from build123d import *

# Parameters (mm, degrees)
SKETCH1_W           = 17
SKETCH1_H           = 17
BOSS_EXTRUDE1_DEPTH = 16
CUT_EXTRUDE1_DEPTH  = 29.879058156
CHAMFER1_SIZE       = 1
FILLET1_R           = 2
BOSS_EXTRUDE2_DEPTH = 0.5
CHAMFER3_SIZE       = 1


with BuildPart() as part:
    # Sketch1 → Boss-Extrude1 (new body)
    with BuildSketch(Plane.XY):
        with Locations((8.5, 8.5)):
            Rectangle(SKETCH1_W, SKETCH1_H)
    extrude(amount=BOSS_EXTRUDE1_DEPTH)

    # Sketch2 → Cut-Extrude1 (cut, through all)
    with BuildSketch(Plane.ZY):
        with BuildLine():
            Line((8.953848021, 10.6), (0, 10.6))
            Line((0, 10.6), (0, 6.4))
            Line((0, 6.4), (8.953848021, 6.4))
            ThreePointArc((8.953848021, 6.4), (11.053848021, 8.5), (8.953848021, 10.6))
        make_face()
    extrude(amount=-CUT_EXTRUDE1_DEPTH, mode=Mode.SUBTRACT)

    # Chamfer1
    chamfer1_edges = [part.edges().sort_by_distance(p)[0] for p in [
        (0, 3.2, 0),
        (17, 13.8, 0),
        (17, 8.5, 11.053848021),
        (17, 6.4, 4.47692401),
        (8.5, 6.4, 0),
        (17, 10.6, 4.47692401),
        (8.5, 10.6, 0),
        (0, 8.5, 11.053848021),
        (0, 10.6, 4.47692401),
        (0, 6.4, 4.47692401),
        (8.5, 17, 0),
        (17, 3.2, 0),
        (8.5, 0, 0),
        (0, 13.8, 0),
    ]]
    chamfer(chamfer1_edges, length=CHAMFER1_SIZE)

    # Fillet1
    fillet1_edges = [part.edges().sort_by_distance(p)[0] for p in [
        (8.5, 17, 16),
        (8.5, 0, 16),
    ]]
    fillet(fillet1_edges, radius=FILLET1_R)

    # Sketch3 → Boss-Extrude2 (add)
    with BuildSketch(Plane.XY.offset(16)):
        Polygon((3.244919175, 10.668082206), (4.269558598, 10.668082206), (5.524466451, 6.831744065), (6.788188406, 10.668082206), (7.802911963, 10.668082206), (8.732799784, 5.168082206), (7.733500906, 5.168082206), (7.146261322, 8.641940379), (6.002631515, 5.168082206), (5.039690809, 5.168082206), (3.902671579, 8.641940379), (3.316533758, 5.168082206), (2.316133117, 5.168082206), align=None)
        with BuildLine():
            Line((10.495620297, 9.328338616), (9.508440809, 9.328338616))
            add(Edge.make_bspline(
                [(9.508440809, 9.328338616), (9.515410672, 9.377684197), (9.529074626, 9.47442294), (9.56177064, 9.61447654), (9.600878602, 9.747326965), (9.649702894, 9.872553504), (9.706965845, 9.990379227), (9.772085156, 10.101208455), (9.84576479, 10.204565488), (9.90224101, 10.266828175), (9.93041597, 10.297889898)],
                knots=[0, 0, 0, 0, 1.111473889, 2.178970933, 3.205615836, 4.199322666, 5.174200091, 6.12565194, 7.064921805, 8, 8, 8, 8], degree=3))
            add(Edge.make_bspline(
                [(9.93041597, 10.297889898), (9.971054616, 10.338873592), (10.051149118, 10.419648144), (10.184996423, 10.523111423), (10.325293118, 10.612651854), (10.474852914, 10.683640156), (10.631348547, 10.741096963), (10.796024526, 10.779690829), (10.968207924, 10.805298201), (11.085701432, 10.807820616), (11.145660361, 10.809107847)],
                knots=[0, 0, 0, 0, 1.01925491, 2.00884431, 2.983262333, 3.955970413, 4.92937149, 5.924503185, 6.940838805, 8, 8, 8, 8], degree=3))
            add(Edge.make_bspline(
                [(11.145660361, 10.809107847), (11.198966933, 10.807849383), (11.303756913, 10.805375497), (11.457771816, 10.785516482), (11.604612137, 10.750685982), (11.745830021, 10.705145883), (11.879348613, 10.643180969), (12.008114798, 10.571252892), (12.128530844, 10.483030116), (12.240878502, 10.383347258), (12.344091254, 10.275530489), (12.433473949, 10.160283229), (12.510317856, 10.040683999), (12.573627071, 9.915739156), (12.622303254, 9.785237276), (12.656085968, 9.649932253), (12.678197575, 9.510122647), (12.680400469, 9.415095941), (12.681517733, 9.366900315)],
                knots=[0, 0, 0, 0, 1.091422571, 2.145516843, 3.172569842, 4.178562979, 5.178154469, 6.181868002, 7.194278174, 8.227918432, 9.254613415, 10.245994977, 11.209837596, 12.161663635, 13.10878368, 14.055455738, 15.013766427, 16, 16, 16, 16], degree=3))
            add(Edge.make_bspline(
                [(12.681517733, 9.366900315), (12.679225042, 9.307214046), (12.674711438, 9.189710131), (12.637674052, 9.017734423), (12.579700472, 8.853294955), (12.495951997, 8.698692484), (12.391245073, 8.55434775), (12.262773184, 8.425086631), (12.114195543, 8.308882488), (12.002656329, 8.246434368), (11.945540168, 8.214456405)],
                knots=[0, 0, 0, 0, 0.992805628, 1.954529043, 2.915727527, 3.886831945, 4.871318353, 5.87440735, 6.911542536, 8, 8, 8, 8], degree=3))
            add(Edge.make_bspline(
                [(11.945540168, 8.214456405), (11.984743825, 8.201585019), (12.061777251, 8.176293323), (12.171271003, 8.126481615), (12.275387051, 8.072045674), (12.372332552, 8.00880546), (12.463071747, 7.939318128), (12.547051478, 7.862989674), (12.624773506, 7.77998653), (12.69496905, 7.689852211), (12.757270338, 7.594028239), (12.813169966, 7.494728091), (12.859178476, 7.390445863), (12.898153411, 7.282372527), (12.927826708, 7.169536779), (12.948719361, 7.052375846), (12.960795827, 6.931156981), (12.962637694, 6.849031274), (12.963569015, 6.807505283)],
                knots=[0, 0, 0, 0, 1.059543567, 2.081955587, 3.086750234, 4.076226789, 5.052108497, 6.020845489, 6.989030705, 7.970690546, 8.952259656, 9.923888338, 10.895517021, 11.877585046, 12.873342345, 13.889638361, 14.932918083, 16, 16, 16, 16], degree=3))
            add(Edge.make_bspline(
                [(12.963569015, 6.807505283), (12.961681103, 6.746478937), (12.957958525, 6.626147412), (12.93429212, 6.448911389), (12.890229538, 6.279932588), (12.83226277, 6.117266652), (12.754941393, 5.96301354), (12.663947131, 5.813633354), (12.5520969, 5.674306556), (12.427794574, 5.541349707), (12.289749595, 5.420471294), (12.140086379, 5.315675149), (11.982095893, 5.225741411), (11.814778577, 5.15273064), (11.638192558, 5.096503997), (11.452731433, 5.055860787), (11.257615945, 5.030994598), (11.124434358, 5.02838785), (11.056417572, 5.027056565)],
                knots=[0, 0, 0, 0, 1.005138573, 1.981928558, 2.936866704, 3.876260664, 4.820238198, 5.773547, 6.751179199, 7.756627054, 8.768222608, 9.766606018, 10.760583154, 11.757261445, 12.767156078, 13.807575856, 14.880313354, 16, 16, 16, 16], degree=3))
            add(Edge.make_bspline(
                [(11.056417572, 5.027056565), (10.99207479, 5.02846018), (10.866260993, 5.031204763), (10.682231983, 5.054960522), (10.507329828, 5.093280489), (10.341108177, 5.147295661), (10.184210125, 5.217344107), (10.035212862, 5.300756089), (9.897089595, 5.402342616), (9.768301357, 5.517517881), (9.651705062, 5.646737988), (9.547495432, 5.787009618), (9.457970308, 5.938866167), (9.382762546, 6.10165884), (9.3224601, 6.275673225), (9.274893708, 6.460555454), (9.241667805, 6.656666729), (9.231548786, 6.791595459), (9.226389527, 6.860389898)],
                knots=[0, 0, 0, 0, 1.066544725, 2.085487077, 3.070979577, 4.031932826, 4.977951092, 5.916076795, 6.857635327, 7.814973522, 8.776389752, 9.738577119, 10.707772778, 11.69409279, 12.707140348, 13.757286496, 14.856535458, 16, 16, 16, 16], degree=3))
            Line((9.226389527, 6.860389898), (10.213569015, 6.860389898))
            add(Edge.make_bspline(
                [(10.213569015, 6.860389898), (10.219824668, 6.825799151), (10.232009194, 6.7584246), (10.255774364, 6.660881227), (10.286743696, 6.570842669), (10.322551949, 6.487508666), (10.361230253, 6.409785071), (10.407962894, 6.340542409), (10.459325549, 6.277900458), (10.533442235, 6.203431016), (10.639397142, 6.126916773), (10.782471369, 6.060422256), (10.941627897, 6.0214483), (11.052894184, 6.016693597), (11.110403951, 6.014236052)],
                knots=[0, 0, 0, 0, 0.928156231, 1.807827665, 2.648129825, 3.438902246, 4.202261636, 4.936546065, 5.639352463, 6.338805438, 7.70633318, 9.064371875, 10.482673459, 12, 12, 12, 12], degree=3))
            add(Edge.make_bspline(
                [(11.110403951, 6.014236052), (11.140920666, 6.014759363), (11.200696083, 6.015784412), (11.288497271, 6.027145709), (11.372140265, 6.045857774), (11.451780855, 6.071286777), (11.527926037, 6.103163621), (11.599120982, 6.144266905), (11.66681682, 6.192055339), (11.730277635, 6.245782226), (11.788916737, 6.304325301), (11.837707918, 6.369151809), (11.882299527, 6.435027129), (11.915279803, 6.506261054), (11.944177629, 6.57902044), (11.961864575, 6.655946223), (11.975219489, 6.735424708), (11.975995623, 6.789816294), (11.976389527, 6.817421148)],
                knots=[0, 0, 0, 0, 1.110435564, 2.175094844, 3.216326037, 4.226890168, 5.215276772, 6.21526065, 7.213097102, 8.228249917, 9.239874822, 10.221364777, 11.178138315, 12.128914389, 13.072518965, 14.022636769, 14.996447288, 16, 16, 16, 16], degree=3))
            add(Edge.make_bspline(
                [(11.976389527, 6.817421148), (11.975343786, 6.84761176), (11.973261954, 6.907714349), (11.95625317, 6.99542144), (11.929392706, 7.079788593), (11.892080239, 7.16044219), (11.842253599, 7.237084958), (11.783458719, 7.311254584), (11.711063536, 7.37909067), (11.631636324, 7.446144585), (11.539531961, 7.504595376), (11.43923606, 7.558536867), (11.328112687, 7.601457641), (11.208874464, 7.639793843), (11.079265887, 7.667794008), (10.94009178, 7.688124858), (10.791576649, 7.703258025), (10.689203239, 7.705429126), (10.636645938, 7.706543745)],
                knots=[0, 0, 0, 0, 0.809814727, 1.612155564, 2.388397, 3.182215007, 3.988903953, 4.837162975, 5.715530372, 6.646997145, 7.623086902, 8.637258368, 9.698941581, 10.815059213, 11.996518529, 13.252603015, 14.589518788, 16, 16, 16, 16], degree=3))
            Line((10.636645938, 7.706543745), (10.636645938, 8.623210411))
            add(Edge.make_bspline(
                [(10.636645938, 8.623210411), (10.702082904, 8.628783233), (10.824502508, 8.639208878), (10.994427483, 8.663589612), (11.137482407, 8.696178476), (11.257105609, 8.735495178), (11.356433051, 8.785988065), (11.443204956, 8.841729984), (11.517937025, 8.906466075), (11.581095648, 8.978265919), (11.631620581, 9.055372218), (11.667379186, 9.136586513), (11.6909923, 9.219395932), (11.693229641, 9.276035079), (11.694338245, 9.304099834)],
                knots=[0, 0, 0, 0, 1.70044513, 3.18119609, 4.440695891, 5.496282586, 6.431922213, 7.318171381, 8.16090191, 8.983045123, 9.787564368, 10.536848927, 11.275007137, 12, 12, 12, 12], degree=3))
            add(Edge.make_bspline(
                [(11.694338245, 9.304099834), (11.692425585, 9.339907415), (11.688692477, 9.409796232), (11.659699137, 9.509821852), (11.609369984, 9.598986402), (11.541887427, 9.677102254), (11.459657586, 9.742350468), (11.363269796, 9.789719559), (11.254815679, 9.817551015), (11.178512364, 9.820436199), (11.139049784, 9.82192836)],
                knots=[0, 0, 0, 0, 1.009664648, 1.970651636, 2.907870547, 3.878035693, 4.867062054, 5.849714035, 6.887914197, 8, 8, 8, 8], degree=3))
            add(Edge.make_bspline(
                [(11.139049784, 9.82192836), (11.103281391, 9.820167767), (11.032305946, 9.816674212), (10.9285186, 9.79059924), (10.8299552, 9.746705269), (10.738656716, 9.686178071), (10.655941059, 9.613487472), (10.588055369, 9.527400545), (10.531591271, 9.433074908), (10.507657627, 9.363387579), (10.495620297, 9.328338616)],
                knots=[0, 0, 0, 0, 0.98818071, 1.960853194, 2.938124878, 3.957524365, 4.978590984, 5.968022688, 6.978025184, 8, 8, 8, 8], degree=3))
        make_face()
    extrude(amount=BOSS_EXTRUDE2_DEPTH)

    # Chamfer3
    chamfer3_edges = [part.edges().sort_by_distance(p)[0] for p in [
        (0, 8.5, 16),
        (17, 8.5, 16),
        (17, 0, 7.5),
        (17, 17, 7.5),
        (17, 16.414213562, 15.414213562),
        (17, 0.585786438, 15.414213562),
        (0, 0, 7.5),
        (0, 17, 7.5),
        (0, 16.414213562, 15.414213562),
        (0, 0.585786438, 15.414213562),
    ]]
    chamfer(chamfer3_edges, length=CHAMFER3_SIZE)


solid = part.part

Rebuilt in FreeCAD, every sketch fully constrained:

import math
import FreeCAD as App
import Part
import Sketcher

V = App.Vector
Q = App.Units.Quantity


def edges_at(feature, points):
    """Names of the edges that pass closest to the given points."""
    edges = feature.Shape.Edges
    near = lambda p: min(range(len(edges)), key=lambda i: edges[i].distToShape(Part.Vertex(*p))[0])
    return sorted({f"Edge{near(p) + 1}" for p in points})

doc = App.newDocument("Part")
params = doc.addObject("Spreadsheet::Sheet", "Params")
for row, (alias, value) in enumerate([
    ("sketch1_width", "17 mm"),
    ("pad1_length", "16 mm"),
    ("sketch2_radius", "2.1 mm"),
    ("chamfer_size", "1 mm"),
    ("fillet_radius", "2 mm"),
    ("pad2_length", "0.5 mm"),
    ("chamfer2_size", "1 mm"),
], start=1):
    params.set(f"A{row}", alias)
    params.set(f"B{row}", "=" + value)
    params.setAlias(f"B{row}", alias)

body = doc.addObject("PartDesign::Body", "Body")

# Sketch on XY plane
sketch1 = body.newObject("Sketcher::SketchObject", "Sketch")
sketch1.AttachmentSupport = (doc.getObject("XY_Plane"), [""])
sketch1.MapMode = "FlatFace"
sketch1.addGeometry(Part.LineSegment(V(0, 17, 0), V(0, 0, 0)), False)
sketch1.addGeometry(Part.LineSegment(V(0, 0, 0), V(17, 0, 0)), False)
sketch1.addGeometry(Part.LineSegment(V(17, 0, 0), V(17, 17, 0)), False)
sketch1.addGeometry(Part.LineSegment(V(17, 17, 0), V(0, 17, 0)), False)
sketch1.addConstraint(Sketcher.Constraint("Coincident", 0, 2, 1, 1))
sketch1.addConstraint(Sketcher.Constraint("Coincident", 1, 2, 2, 1))
sketch1.addConstraint(Sketcher.Constraint("Coincident", 2, 2, 3, 1))
sketch1.addConstraint(Sketcher.Constraint("Coincident", 3, 2, 0, 1))
sketch1.addConstraint(Sketcher.Constraint("Vertical", 0))
sketch1.addConstraint(Sketcher.Constraint("Horizontal", 1))
sketch1.addConstraint(Sketcher.Constraint("Vertical", 2))
sketch1.addConstraint(Sketcher.Constraint("Horizontal", 3))
sketch1.addConstraint(Sketcher.Constraint("Coincident", 0, 2, -1, 1))
sketch1.addConstraint(Sketcher.Constraint("Equal", 3, 0))
sketch1.addConstraint(Sketcher.Constraint("DistanceX", 1, 1, 1, 2, Q("17 mm")))
sketch1.setExpression("Constraints[10]", "Params.sketch1_width")
pad1 = body.newObject("PartDesign::Pad", "Pad")
pad1.Profile = sketch1
pad1.setExpression("Length", "Params.pad1_length")

# Sketch on YZ plane
sketch2 = body.newObject("Sketcher::SketchObject", "Sketch001")
sketch2.AttachmentSupport = (doc.getObject("YZ_Plane"), [""])
sketch2.MapMode = "FlatFace"
sketch2.addGeometry(Part.LineSegment(V(10.6, 9, 0), V(10.6, 0, 0)), False)
sketch2.addGeometry(Part.LineSegment(V(10.6, 0, 0), V(6.4, 0, 0)), False)
sketch2.addGeometry(Part.LineSegment(V(6.4, 0, 0), V(6.4, 9, 0)), False)
sketch2.addGeometry(Part.ArcOfCircle(Part.Circle(V(8.5, 9, 0), V(0, 0, 1), 2.1), math.radians(0), math.radians(180)), False)
sketch2.addConstraint(Sketcher.Constraint("Coincident", 0, 2, 1, 1))
sketch2.addConstraint(Sketcher.Constraint("Coincident", 1, 2, 2, 1))
sketch2.addConstraint(Sketcher.Constraint("Tangent", 2, 2, 3, 2))
sketch2.addConstraint(Sketcher.Constraint("Tangent", 3, 1, 0, 1))
sketch2.addConstraint(Sketcher.Constraint("Vertical", 0))
sketch2.addConstraint(Sketcher.Constraint("Horizontal", 1))
sketch2.addConstraint(Sketcher.Constraint("Vertical", 2))
sketch2.addConstraint(Sketcher.Constraint("PointOnObject", 0, 2, -1))
sketch2.addConstraint(Sketcher.Constraint("Radius", 3, Q("2.1 mm")))
sketch2.addConstraint(Sketcher.Constraint("DistanceX", -1, 1, 3, 3, Q("8.5 mm")))
sketch2.addConstraint(Sketcher.Constraint("DistanceY", 0, 2, 0, 1, Q("8.953848 mm")))
sketch2.setExpression("Constraints[8]", "Params.sketch2_radius")
pocket1 = body.newObject("PartDesign::Pocket", "Pocket")
pocket1.Profile = sketch2
pocket1.Type = "ThroughAll"
pocket1.Reversed = True
doc.recompute()

chamfer = body.newObject("PartDesign::Chamfer", "Chamfer")
chamfer.Base = (pocket1, edges_at(pocket1, [
    (0, 3.2, 0),
    (17, 13.8, 0),
    (17, 8.5, 11.054),
    (17, 6.4, 4.477),
    (8.5, 6.4, 0),
    (17, 10.6, 4.477),
    (8.5, 10.6, 0),
    (0, 8.5, 11.054),
    (0, 10.6, 4.477),
    (0, 6.4, 4.477),
    (8.5, 17, 0),
    (17, 3.2, 0),
    (8.5, 0, 0),
    (0, 13.8, 0),
]))
chamfer.setExpression("Size", "Params.chamfer_size")
doc.recompute()

fillet = body.newObject("PartDesign::Fillet", "Fillet")
fillet.Base = (chamfer, edges_at(chamfer, [(8.5, 17, 16), (8.5, 0, 16)]))
fillet.setExpression("Radius", "Params.fillet_radius")

# Sketch on XY plane
sketch3 = body.newObject("Sketcher::SketchObject", "Sketch002")
sketch3.AttachmentSupport = (doc.getObject("XY_Plane"), [""])
sketch3.MapMode = "FlatFace"
sketch3.AttachmentOffset = App.Placement(V(0, 0, 16), App.Rotation())
sketch3.addGeometry(Part.LineSegment(V(4.269559, 10.668082, 0), V(3.244919, 10.668082, 0)), False)
sketch3.addGeometry(Part.LineSegment(V(3.244919, 10.668082, 0), V(2.316133, 5.168082, 0)), False)
sketch3.addGeometry(Part.LineSegment(V(2.316133, 5.168082, 0), V(3.316534, 5.168082, 0)), False)
sketch3.addGeometry(Part.LineSegment(V(3.316534, 5.168082, 0), V(3.902672, 8.64194, 0)), False)
sketch3.addGeometry(Part.LineSegment(V(3.902672, 8.64194, 0), V(5.039691, 5.168082, 0)), False)
sketch3.addGeometry(Part.LineSegment(V(5.039691, 5.168082, 0), V(6.002632, 5.168082, 0)), False)
sketch3.addGeometry(Part.LineSegment(V(6.002632, 5.168082, 0), V(7.146261, 8.64194, 0)), False)
sketch3.addGeometry(Part.LineSegment(V(7.146261, 8.64194, 0), V(7.733501, 5.168082, 0)), False)
sketch3.addGeometry(Part.LineSegment(V(7.733501, 5.168082, 0), V(8.7328, 5.168082, 0)), False)
sketch3.addGeometry(Part.LineSegment(V(8.7328, 5.168082, 0), V(7.802912, 10.668082, 0)), False)
sketch3.addGeometry(Part.LineSegment(V(7.802912, 10.668082, 0), V(6.788188, 10.668082, 0)), False)
sketch3.addGeometry(Part.LineSegment(V(6.788188, 10.668082, 0), V(5.524466, 6.831744, 0)), False)
sketch3.addGeometry(Part.LineSegment(V(5.524466, 6.831744, 0), V(4.269559, 10.668082, 0)), False)
sketch3.addGeometry(Part.LineSegment(V(9.508441, 9.328339, 0), V(10.49562, 9.328339, 0)), False)
sketch3.addGeometry(Part.BSplineCurve([V(11.13905, 9.821928, 0), V(11.103281, 9.820168, 0), V(11.032306, 9.816674, 0), V(10.928519, 9.790599, 0), V(10.829955, 9.746705, 0), V(10.738657, 9.686178, 0), V(10.655941, 9.613487, 0), V(10.588055, 9.527401, 0), V(10.531591, 9.433075, 0), V(10.507658, 9.363388, 0), V(10.49562, 9.328339, 0)], [4, 1, 1, 1, 1, 1, 1, 1, 4], [0, 0.98818071, 1.960853194, 2.938124878, 3.957524365, 4.978590984, 5.968022688, 6.978025184, 8], False, 3, [1, 1, 1, 1, 1, 1, 1, 1, 1, 1, 1], False), False)
sketch3.addGeometry(Part.BSplineCurve([V(11.694338, 9.3041, 0), V(11.692426, 9.339907, 0), V(11.688692, 9.409796, 0), V(11.659699, 9.509822, 0), V(11.60937, 9.598986, 0), V(11.541887, 9.677102, 0), V(11.459658, 9.74235, 0), V(11.36327, 9.78972, 0), V(11.254816, 9.817551, 0), V(11.178512, 9.820436, 0), V(11.13905, 9.821928, 0)], [4, 1, 1, 1, 1, 1, 1, 1, 4], [0, 1.009664648, 1.970651636, 2.907870547, 3.878035693, 4.867062054, 5.849714035, 6.887914197, 8], False, 3, [1, 1, 1, 1, 1, 1, 1, 1, 1, 1, 1], False), False)
sketch3.addGeometry(Part.BSplineCurve([V(10.636646, 8.62321, 0), V(10.702083, 8.628783, 0), V(10.824503, 8.639209, 0), V(10.994427, 8.66359, 0), V(11.137482, 8.696178, 0), V(11.257106, 8.735495, 0), V(11.356433, 8.785988, 0), V(11.443205, 8.84173, 0), V(11.517937, 8.906466, 0), V(11.581096, 8.978266, 0), V(11.631621, 9.055372, 0), V(11.667379, 9.136587, 0), V(11.690992, 9.219396, 0), V(11.69323, 9.276035, 0), V(11.694338, 9.3041, 0)], [4, 1, 1, 1, 1, 1, 1, 1, 1, 1, 1, 1, 4], [0, 1.70044513, 3.18119609, 4.440695891, 5.496282586, 6.431922213, 7.318171381, 8.16090191, 8.983045123, 9.787564368, 10.536848927, 11.275007137, 12], False, 3, [1, 1, 1, 1, 1, 1, 1, 1, 1, 1, 1, 1, 1, 1, 1], False), False)
sketch3.addGeometry(Part.LineSegment(V(10.636646, 8.62321, 0), V(10.636646, 7.706544, 0)), False)
sketch3.addGeometry(Part.BSplineCurve([V(11.97639, 6.817421, 0), V(11.975344, 6.847612, 0), V(11.973262, 6.907714, 0), V(11.956253, 6.995421, 0), V(11.929393, 7.079789, 0), V(11.89208, 7.160442, 0), V(11.842254, 7.237085, 0), V(11.783459, 7.311255, 0), V(11.711064, 7.379091, 0), V(11.631636, 7.446145, 0), V(11.539532, 7.504595, 0), V(11.439236, 7.558537, 0), V(11.328113, 7.601458, 0), V(11.208874, 7.639794, 0), V(11.079266, 7.667794, 0), V(10.940092, 7.688125, 0), V(10.791577, 7.703258, 0), V(10.689203, 7.705429, 0), V(10.636646, 7.706544, 0)], [4, 1, 1, 1, 1, 1, 1, 1, 1, 1, 1, 1, 1, 1, 1, 1, 4], [0, 0.809814727, 1.612155564, 2.388397, 3.182215007, 3.988903953, 4.837162975, 5.715530372, 6.646997145, 7.623086902, 8.637258368, 9.698941581, 10.815059213, 11.996518529, 13.252603015, 14.589518788, 16], False, 3, [1, 1, 1, 1, 1, 1, 1, 1, 1, 1, 1, 1, 1, 1, 1, 1, 1, 1, 1], False), False)
sketch3.addGeometry(Part.BSplineCurve([V(11.110404, 6.014236, 0), V(11.140921, 6.014759, 0), V(11.200696, 6.015784, 0), V(11.288497, 6.027146, 0), V(11.37214, 6.045858, 0), V(11.451781, 6.071287, 0), V(11.527926, 6.103164, 0), V(11.599121, 6.144267, 0), V(11.666817, 6.192055, 0), V(11.730278, 6.245782, 0), V(11.788917, 6.304325, 0), V(11.837708, 6.369152, 0), V(11.8823, 6.435027, 0), V(11.91528, 6.506261, 0), V(11.944178, 6.57902, 0), V(11.961865, 6.655946, 0), V(11.975219, 6.735425, 0), V(11.975996, 6.789816, 0), V(11.97639, 6.817421, 0)], [4, 1, 1, 1, 1, 1, 1, 1, 1, 1, 1, 1, 1, 1, 1, 1, 4], [0, 1.110435564, 2.175094844, 3.216326037, 4.226890168, 5.215276772, 6.21526065, 7.213097102, 8.228249917, 9.239874822, 10.221364777, 11.178138315, 12.128914389, 13.072518965, 14.022636769, 14.996447288, 16], False, 3, [1, 1, 1, 1, 1, 1, 1, 1, 1, 1, 1, 1, 1, 1, 1, 1, 1, 1, 1], False), False)
sketch3.addGeometry(Part.BSplineCurve([V(10.213569, 6.86039, 0), V(10.219825, 6.825799, 0), V(10.232009, 6.758425, 0), V(10.255774, 6.660881, 0), V(10.286744, 6.570843, 0), V(10.322552, 6.487509, 0), V(10.36123, 6.409785, 0), V(10.407963, 6.340542, 0), V(10.459326, 6.2779, 0), V(10.533442, 6.203431, 0), V(10.639397, 6.126917, 0), V(10.782471, 6.060422, 0), V(10.941628, 6.021448, 0), V(11.052894, 6.016694, 0), V(11.110404, 6.014236, 0)], [4, 1, 1, 1, 1, 1, 1, 1, 1, 1, 1, 1, 4], [0, 0.928156231, 1.807827665, 2.648129825, 3.438902246, 4.202261636, 4.936546065, 5.639352463, 6.338805438, 7.70633318, 9.064371875, 10.482673459, 12], False, 3, [1, 1, 1, 1, 1, 1, 1, 1, 1, 1, 1, 1, 1, 1, 1], False), False)
sketch3.addGeometry(Part.LineSegment(V(10.213569, 6.86039, 0), V(9.22639, 6.86039, 0)), False)
sketch3.addGeometry(Part.BSplineCurve([V(11.056418, 5.027057, 0), V(10.992075, 5.02846, 0), V(10.866261, 5.031205, 0), V(10.682232, 5.054961, 0), V(10.50733, 5.09328, 0), V(10.341108, 5.147296, 0), V(10.18421, 5.217344, 0), V(10.035213, 5.300756, 0), V(9.89709, 5.402343, 0), V(9.768301, 5.517518, 0), V(9.651705, 5.646738, 0), V(9.547495, 5.78701, 0), V(9.45797, 5.938866, 0), V(9.382763, 6.101659, 0), V(9.32246, 6.275673, 0), V(9.274894, 6.460555, 0), V(9.241668, 6.656667, 0), V(9.231549, 6.791595, 0), V(9.22639, 6.86039, 0)], [4, 1, 1, 1, 1, 1, 1, 1, 1, 1, 1, 1, 1, 1, 1, 1, 4], [0, 1.066544725, 2.085487077, 3.070979577, 4.031932826, 4.977951092, 5.916076795, 6.857635327, 7.814973522, 8.776389752, 9.738577119, 10.707772778, 11.69409279, 12.707140348, 13.757286496, 14.856535458, 16], False, 3, [1, 1, 1, 1, 1, 1, 1, 1, 1, 1, 1, 1, 1, 1, 1, 1, 1, 1, 1], False), False)
sketch3.addGeometry(Part.BSplineCurve([V(12.963569, 6.807505, 0), V(12.961681, 6.746479, 0), V(12.957959, 6.626147, 0), V(12.934292, 6.448911, 0), V(12.89023, 6.279933, 0), V(12.832263, 6.117267, 0), V(12.754941, 5.963014, 0), V(12.663947, 5.813633, 0), V(12.552097, 5.674307, 0), V(12.427795, 5.54135, 0), V(12.28975, 5.420471, 0), V(12.140086, 5.315675, 0), V(11.982096, 5.225741, 0), V(11.814779, 5.152731, 0), V(11.638193, 5.096504, 0), V(11.452731, 5.055861, 0), V(11.257616, 5.030995, 0), V(11.124434, 5.028388, 0), V(11.056418, 5.027057, 0)], [4, 1, 1, 1, 1, 1, 1, 1, 1, 1, 1, 1, 1, 1, 1, 1, 4], [0, 1.005138573, 1.981928558, 2.936866704, 3.876260664, 4.820238198, 5.773547, 6.751179199, 7.756627054, 8.768222608, 9.766606018, 10.760583154, 11.757261445, 12.767156078, 13.807575856, 14.880313354, 16], False, 3, [1, 1, 1, 1, 1, 1, 1, 1, 1, 1, 1, 1, 1, 1, 1, 1, 1, 1, 1], False), False)
sketch3.addGeometry(Part.BSplineCurve([V(11.94554, 8.214456, 0), V(11.984744, 8.201585, 0), V(12.061777, 8.176293, 0), V(12.171271, 8.126482, 0), V(12.275387, 8.072046, 0), V(12.372333, 8.008805, 0), V(12.463072, 7.939318, 0), V(12.547051, 7.86299, 0), V(12.624774, 7.779987, 0), V(12.694969, 7.689852, 0), V(12.75727, 7.594028, 0), V(12.81317, 7.494728, 0), V(12.859178, 7.390446, 0), V(12.898153, 7.282373, 0), V(12.927827, 7.169537, 0), V(12.948719, 7.052376, 0), V(12.960796, 6.931157, 0), V(12.962638, 6.849031, 0), V(12.963569, 6.807505, 0)], [4, 1, 1, 1, 1, 1, 1, 1, 1, 1, 1, 1, 1, 1, 1, 1, 4], [0, 1.059543567, 2.081955587, 3.086750234, 4.076226789, 5.052108497, 6.020845489, 6.989030705, 7.970690546, 8.952259656, 9.923888338, 10.895517021, 11.877585046, 12.873342345, 13.889638361, 14.932918083, 16], False, 3, [1, 1, 1, 1, 1, 1, 1, 1, 1, 1, 1, 1, 1, 1, 1, 1, 1, 1, 1], False), False)
sketch3.addGeometry(Part.BSplineCurve([V(12.681518, 9.3669, 0), V(12.679225, 9.307214, 0), V(12.674711, 9.18971, 0), V(12.637674, 9.017734, 0), V(12.5797, 8.853295, 0), V(12.495952, 8.698692, 0), V(12.391245, 8.554348, 0), V(12.262773, 8.425087, 0), V(12.114196, 8.308882, 0), V(12.002656, 8.246434, 0), V(11.94554, 8.214456, 0)], [4, 1, 1, 1, 1, 1, 1, 1, 4], [0, 0.992805628, 1.954529043, 2.915727527, 3.886831945, 4.871318353, 5.87440735, 6.911542536, 8], False, 3, [1, 1, 1, 1, 1, 1, 1, 1, 1, 1, 1], False), False)
sketch3.addGeometry(Part.BSplineCurve([V(11.14566, 10.809108, 0), V(11.198967, 10.807849, 0), V(11.303757, 10.805375, 0), V(11.457772, 10.785516, 0), V(11.604612, 10.750686, 0), V(11.74583, 10.705146, 0), V(11.879349, 10.643181, 0), V(12.008115, 10.571253, 0), V(12.128531, 10.48303, 0), V(12.240879, 10.383347, 0), V(12.344091, 10.27553, 0), V(12.433474, 10.160283, 0), V(12.510318, 10.040684, 0), V(12.573627, 9.915739, 0), V(12.622303, 9.785237, 0), V(12.656086, 9.649932, 0), V(12.678198, 9.510123, 0), V(12.6804, 9.415096, 0), V(12.681518, 9.3669, 0)], [4, 1, 1, 1, 1, 1, 1, 1, 1, 1, 1, 1, 1, 1, 1, 1, 4], [0, 1.091422571, 2.145516843, 3.172569842, 4.178562979, 5.178154469, 6.181868002, 7.194278174, 8.227918432, 9.254613415, 10.245994977, 11.209837596, 12.161663635, 13.10878368, 14.055455738, 15.013766427, 16], False, 3, [1, 1, 1, 1, 1, 1, 1, 1, 1, 1, 1, 1, 1, 1, 1, 1, 1, 1, 1], False), False)
sketch3.addGeometry(Part.BSplineCurve([V(9.930416, 10.29789, 0), V(9.971055, 10.338874, 0), V(10.051149, 10.419648, 0), V(10.184996, 10.523111, 0), V(10.325293, 10.612652, 0), V(10.474853, 10.68364, 0), V(10.631349, 10.741097, 0), V(10.796025, 10.779691, 0), V(10.968208, 10.805298, 0), V(11.085701, 10.807821, 0), V(11.14566, 10.809108, 0)], [4, 1, 1, 1, 1, 1, 1, 1, 4], [0, 1.01925491, 2.00884431, 2.983262333, 3.955970413, 4.92937149, 5.924503185, 6.940838805, 8], False, 3, [1, 1, 1, 1, 1, 1, 1, 1, 1, 1, 1], False), False)
sketch3.addGeometry(Part.BSplineCurve([V(9.508441, 9.328339, 0), V(9.515411, 9.377684, 0), V(9.529075, 9.474423, 0), V(9.561771, 9.614477, 0), V(9.600879, 9.747327, 0), V(9.649703, 9.872554, 0), V(9.706966, 9.990379, 0), V(9.772085, 10.101208, 0), V(9.845765, 10.204565, 0), V(9.902241, 10.266828, 0), V(9.930416, 10.29789, 0)], [4, 1, 1, 1, 1, 1, 1, 1, 4], [0, 1.111473889, 2.178970933, 3.205615836, 4.199322666, 5.174200091, 6.12565194, 7.064921805, 8], False, 3, [1, 1, 1, 1, 1, 1, 1, 1, 1, 1, 1], False), False)
sketch3.addConstraint(Sketcher.Constraint("Block", 14))
sketch3.addConstraint(Sketcher.Constraint("Block", 15))
sketch3.addConstraint(Sketcher.Constraint("Block", 16))
sketch3.addConstraint(Sketcher.Constraint("Block", 18))
sketch3.addConstraint(Sketcher.Constraint("Block", 19))
sketch3.addConstraint(Sketcher.Constraint("Block", 20))
sketch3.addConstraint(Sketcher.Constraint("Block", 22))
sketch3.addConstraint(Sketcher.Constraint("Block", 23))
sketch3.addConstraint(Sketcher.Constraint("Block", 24))
sketch3.addConstraint(Sketcher.Constraint("Block", 25))
sketch3.addConstraint(Sketcher.Constraint("Block", 26))
sketch3.addConstraint(Sketcher.Constraint("Block", 27))
sketch3.addConstraint(Sketcher.Constraint("Block", 28))
sketch3.addConstraint(Sketcher.Constraint("Coincident", 0, 2, 1, 1))
sketch3.addConstraint(Sketcher.Constraint("Coincident", 1, 2, 2, 1))
sketch3.addConstraint(Sketcher.Constraint("Coincident", 2, 2, 3, 1))
sketch3.addConstraint(Sketcher.Constraint("Coincident", 3, 2, 4, 1))
sketch3.addConstraint(Sketcher.Constraint("Coincident", 4, 2, 5, 1))
sketch3.addConstraint(Sketcher.Constraint("Coincident", 5, 2, 6, 1))
sketch3.addConstraint(Sketcher.Constraint("Coincident", 6, 2, 7, 1))
sketch3.addConstraint(Sketcher.Constraint("Coincident", 7, 2, 8, 1))
sketch3.addConstraint(Sketcher.Constraint("Coincident", 8, 2, 9, 1))
sketch3.addConstraint(Sketcher.Constraint("Coincident", 9, 2, 10, 1))
sketch3.addConstraint(Sketcher.Constraint("Coincident", 10, 2, 11, 1))
sketch3.addConstraint(Sketcher.Constraint("Coincident", 11, 2, 12, 1))
sketch3.addConstraint(Sketcher.Constraint("Coincident", 12, 2, 0, 1))
sketch3.addConstraint(Sketcher.Constraint("Coincident", 13, 2, 14, 2))
sketch3.addConstraint(Sketcher.Constraint("Coincident", 16, 1, 17, 1))
sketch3.addConstraint(Sketcher.Constraint("Coincident", 17, 2, 18, 2))
sketch3.addConstraint(Sketcher.Constraint("Coincident", 20, 1, 21, 1))
sketch3.addConstraint(Sketcher.Constraint("Coincident", 21, 2, 22, 2))
sketch3.addConstraint(Sketcher.Constraint("Coincident", 28, 1, 13, 1))
sketch3.addConstraint(Sketcher.Constraint("Horizontal", 0))
sketch3.addConstraint(Sketcher.Constraint("Horizontal", 2))
sketch3.addConstraint(Sketcher.Constraint("Horizontal", 5))
sketch3.addConstraint(Sketcher.Constraint("Horizontal", 8))
sketch3.addConstraint(Sketcher.Constraint("Horizontal", 10))
sketch3.addConstraint(Sketcher.Constraint("Horizontal", 2, 2, 4, 2))
sketch3.addConstraint(Sketcher.Constraint("Horizontal", 3, 2, 6, 2))
sketch3.addConstraint(Sketcher.Constraint("Horizontal", 5, 2, 7, 2))
sketch3.addConstraint(Sketcher.Constraint("Horizontal", 0, 2, 9, 2))
sketch3.addConstraint(Sketcher.Constraint("DistanceY", 1, 2, 0, 2, Q("5.5 mm")))
sketch3.addConstraint(Sketcher.Constraint("DistanceX", 2, 1, 2, 2, Q("1.000401 mm")))
sketch3.addConstraint(Sketcher.Constraint("DistanceX", 8, 1, 8, 2, Q("0.999299 mm")))
sketch3.addConstraint(Sketcher.Constraint("DistanceX", 0, 2, 0, 1, Q("1.024639 mm")))
sketch3.addConstraint(Sketcher.Constraint("DistanceX", 5, 1, 5, 2, Q("0.962941 mm")))
sketch3.addConstraint(Sketcher.Constraint("DistanceX", -1, 1, 7, 2, Q("7.733501 mm")))
sketch3.addConstraint(Sketcher.Constraint("DistanceX", 1, 2, 5, 2, Q("3.686498 mm")))
sketch3.addConstraint(Sketcher.Constraint("DistanceY", 6, 2, 13, 2, Q("0.686398 mm")))
sketch3.addConstraint(Sketcher.Constraint("Distance", 1, Q("5.577871 mm")))
sketch3.addConstraint(Sketcher.Constraint("Distance", 3, Q("3.52296 mm")))
sketch3.addConstraint(Sketcher.Constraint("Distance", 11, Q("4.039119 mm")))
sketch3.addConstraint(Sketcher.Constraint("Distance", 12, Q("4.03637 mm")))
sketch3.addConstraint(Sketcher.Constraint("DistanceX", 10, 2, 10, 1, Q("1.014724 mm")))
sketch3.addConstraint(Sketcher.Constraint("DistanceX", -1, 1, 0, 2, Q("3.244919 mm")))
sketch3.addConstraint(Sketcher.Constraint("DistanceX", -1, 1, 3, 2, Q("3.902672 mm")))
sketch3.addConstraint(Sketcher.Constraint("DistanceX", -1, 1, 6, 2, Q("7.146261 mm")))
sketch3.addConstraint(Sketcher.Constraint("DistanceX", -1, 1, 9, 2, Q("7.802912 mm")))
pad2 = body.newObject("PartDesign::Pad", "Pad001")
pad2.Profile = sketch3
pad2.setExpression("Length", "Params.pad2_length")
doc.recompute()

chamfer2 = body.newObject("PartDesign::Chamfer", "Chamfer001")
chamfer2.Base = (pad2, edges_at(pad2, [
    (0, 8.5, 16),
    (17, 8.5, 16),
    (17, 0, 7.5),
    (17, 17, 7.5),
    (17, 16.414, 15.414),
    (17, 0.586, 15.414),
    (0, 0, 7.5),
    (0, 17, 7.5),
    (0, 16.414, 15.414),
    (0, 0.586, 15.414),
]))
chamfer2.setExpression("Size", "Params.chamfer2_size")

doc.recompute()
